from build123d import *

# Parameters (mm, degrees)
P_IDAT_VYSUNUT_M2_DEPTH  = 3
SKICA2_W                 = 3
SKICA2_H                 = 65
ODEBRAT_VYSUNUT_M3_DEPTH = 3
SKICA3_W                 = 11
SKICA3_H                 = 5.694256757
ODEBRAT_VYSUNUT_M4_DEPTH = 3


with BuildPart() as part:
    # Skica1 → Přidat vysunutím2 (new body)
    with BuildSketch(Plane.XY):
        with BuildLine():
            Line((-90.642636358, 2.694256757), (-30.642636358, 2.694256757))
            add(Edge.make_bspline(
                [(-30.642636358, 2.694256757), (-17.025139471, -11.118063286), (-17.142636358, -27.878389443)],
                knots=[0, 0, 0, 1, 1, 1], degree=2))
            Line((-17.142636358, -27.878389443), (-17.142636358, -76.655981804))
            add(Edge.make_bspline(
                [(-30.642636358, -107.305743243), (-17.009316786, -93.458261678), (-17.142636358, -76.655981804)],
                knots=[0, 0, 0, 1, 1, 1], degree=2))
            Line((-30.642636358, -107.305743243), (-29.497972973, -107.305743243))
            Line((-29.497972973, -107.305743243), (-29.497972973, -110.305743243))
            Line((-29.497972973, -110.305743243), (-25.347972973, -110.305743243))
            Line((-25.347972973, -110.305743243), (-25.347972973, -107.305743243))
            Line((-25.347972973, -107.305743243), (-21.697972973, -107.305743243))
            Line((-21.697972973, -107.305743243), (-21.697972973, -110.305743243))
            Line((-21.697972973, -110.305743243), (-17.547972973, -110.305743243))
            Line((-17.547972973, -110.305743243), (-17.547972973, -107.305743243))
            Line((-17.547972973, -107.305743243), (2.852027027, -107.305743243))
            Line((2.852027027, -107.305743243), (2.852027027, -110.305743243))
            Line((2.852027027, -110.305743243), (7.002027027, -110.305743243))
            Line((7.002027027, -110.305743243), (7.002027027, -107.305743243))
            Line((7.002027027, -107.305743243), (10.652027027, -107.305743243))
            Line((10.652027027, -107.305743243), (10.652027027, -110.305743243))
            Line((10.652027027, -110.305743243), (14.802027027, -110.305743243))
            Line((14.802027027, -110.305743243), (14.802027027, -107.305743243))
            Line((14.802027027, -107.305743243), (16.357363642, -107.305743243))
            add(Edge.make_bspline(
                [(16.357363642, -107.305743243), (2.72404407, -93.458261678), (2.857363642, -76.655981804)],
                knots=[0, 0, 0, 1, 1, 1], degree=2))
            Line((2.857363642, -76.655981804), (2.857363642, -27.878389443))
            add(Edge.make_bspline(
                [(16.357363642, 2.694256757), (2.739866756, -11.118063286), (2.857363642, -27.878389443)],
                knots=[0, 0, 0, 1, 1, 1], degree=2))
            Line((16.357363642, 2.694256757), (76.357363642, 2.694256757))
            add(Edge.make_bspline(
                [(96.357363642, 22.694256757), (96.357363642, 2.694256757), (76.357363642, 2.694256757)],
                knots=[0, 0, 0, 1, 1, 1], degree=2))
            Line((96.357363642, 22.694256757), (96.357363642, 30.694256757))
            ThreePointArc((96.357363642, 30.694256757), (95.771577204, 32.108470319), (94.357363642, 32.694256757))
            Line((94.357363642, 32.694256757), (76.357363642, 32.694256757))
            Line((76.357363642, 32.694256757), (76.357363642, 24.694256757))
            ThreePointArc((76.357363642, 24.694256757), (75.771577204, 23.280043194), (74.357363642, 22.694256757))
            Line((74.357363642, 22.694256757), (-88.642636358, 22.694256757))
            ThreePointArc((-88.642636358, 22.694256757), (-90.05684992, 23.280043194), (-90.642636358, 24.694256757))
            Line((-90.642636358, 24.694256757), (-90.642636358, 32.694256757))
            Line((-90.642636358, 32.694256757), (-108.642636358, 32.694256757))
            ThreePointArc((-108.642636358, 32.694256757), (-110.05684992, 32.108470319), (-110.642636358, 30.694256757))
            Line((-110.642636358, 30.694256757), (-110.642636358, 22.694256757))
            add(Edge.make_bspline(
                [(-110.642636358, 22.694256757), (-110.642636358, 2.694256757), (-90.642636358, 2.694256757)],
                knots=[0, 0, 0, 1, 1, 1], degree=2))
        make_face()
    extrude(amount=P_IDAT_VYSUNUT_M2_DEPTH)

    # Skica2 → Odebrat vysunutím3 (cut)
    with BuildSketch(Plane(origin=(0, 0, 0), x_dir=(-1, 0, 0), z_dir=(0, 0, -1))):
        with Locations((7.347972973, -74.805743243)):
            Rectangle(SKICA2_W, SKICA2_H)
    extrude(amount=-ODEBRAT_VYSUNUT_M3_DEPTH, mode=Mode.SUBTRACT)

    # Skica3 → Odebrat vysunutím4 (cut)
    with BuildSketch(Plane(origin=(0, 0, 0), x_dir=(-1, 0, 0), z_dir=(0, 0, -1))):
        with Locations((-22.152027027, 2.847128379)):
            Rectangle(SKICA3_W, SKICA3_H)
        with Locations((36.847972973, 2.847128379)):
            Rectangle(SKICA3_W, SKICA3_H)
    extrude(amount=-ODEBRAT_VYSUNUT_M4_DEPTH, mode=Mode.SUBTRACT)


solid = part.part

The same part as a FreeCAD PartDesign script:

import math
import FreeCAD as App
import Part
import Sketcher

doc = App.newDocument("Part")
body = doc.addObject("PartDesign::Body", "Body")

# Sketch on XY plane
sketch1 = body.newObject("Sketcher::SketchObject", "Sketch")
sketch1.AttachmentSupport = (doc.getObject("XY_Plane"), [""])
sketch1.MapMode = "FlatFace"
sketch1.addGeometry([
    Part.LineSegment(App.Vector(-90.642636, 2.694257, 0), App.Vector(-30.642636, 2.694257, 0)),  # 0
    Part.BSplineCurve([App.Vector(-30.642636, 2.694257, 0), App.Vector(-17.025139, -11.118063, 0), App.Vector(-17.142636, -27.878389, 0)], [3, 3], [0, 1], False, 2, [1, 1, 1], False),  # 1
    Part.LineSegment(App.Vector(-17.142636, -27.878389, 0), App.Vector(-17.142636, -76.655982, 0)),  # 2
    Part.BSplineCurve([App.Vector(-30.642636, -107.305743, 0), App.Vector(-17.009317, -93.458262, 0), App.Vector(-17.142636, -76.655982, 0)], [3, 3], [0, 1], False, 2, [1, 1, 1], False),  # 3
    Part.LineSegment(App.Vector(-30.642636, -107.305743, 0), App.Vector(-29.497973, -107.305743, 0)),  # 4
    Part.LineSegment(App.Vector(-29.497973, -107.305743, 0), App.Vector(-29.497973, -110.305743, 0)),  # 5
    Part.LineSegment(App.Vector(-29.497973, -110.305743, 0), App.Vector(-25.347973, -110.305743, 0)),  # 6
    Part.LineSegment(App.Vector(-25.347973, -110.305743, 0), App.Vector(-25.347973, -107.305743, 0)),  # 7
    Part.LineSegment(App.Vector(-25.347973, -107.305743, 0), App.Vector(-21.697973, -107.305743, 0)),  # 8
    Part.LineSegment(App.Vector(-21.697973, -107.305743, 0), App.Vector(-21.697973, -110.305743, 0)),  # 9
    Part.LineSegment(App.Vector(-21.697973, -110.305743, 0), App.Vector(-17.547973, -110.305743, 0)),  # 10
    Part.LineSegment(App.Vector(-17.547973, -110.305743, 0), App.Vector(-17.547973, -107.305743, 0)),  # 11
    Part.LineSegment(App.Vector(-17.547973, -107.305743, 0), App.Vector(2.852027, -107.305743, 0)),  # 12
    Part.LineSegment(App.Vector(2.852027, -107.305743, 0), App.Vector(2.852027, -110.305743, 0)),  # 13
    Part.LineSegment(App.Vector(2.852027, -110.305743, 0), App.Vector(7.002027, -110.305743, 0)),  # 14
    Part.LineSegment(App.Vector(7.002027, -110.305743, 0), App.Vector(7.002027, -107.305743, 0)),  # 15
    Part.LineSegment(App.Vector(7.002027, -107.305743, 0), App.Vector(10.652027, -107.305743, 0)),  # 16
    Part.LineSegment(App.Vector(10.652027, -107.305743, 0), App.Vector(10.652027, -110.305743, 0)),  # 17
    Part.LineSegment(App.Vector(10.652027, -110.305743, 0), App.Vector(14.802027, -110.305743, 0)),  # 18
    Part.LineSegment(App.Vector(14.802027, -110.305743, 0), App.Vector(14.802027, -107.305743, 0)),  # 19
    Part.LineSegment(App.Vector(14.802027, -107.305743, 0), App.Vector(16.357364, -107.305743, 0)),  # 20
    Part.BSplineCurve([App.Vector(16.357364, -107.305743, 0), App.Vector(2.724044, -93.458262, 0), App.Vector(2.857364, -76.655982, 0)], [3, 3], [0, 1], False, 2, [1, 1, 1], False),  # 21
    Part.LineSegment(App.Vector(2.857364, -76.655982, 0), App.Vector(2.857364, -27.878389, 0)),  # 22
    Part.BSplineCurve([App.Vector(16.357364, 2.694257, 0), App.Vector(2.739867, -11.118063, 0), App.Vector(2.857364, -27.878389, 0)], [3, 3], [0, 1], False, 2, [1, 1, 1], False),  # 23
    Part.LineSegment(App.Vector(16.357364, 2.694257, 0), App.Vector(76.357364, 2.694257, 0)),  # 24
    Part.BSplineCurve([App.Vector(96.357364, 22.694257, 0), App.Vector(96.357364, 2.694257, 0), App.Vector(76.357364, 2.694257, 0)], [3, 3], [0, 1], False, 2, [1, 1, 1], False),  # 25
    Part.LineSegment(App.Vector(96.357364, 22.694257, 0), App.Vector(96.357364, 30.694257, 0)),  # 26
    Part.ArcOfCircle(Part.Circle(App.Vector(94.357364, 30.694257, 0), App.Vector(0, 0, 1), 2), math.radians(0), math.radians(90)),  # 27
    Part.LineSegment(App.Vector(94.357364, 32.694257, 0), App.Vector(76.357364, 32.694257, 0)),  # 28
    Part.LineSegment(App.Vector(76.357364, 32.694257, 0), App.Vector(76.357364, 24.694257, 0)),  # 29
    Part.ArcOfCircle(Part.Circle(App.Vector(74.357364, 24.694257, 0), App.Vector(0, 0, 1), 2), math.radians(-90), math.radians(0)),  # 30
    Part.LineSegment(App.Vector(74.357364, 22.694257, 0), App.Vector(-88.642636, 22.694257, 0)),  # 31
    Part.ArcOfCircle(Part.Circle(App.Vector(-88.642636, 24.694257, 0), App.Vector(0, 0, 1), 2), math.radians(180), math.radians(270)),  # 32
    Part.LineSegment(App.Vector(-90.642636, 24.694257, 0), App.Vector(-90.642636, 32.694257, 0)),  # 33
    Part.LineSegment(App.Vector(-90.642636, 32.694257, 0), App.Vector(-108.642636, 32.694257, 0)),  # 34
    Part.ArcOfCircle(Part.Circle(App.Vector(-108.642636, 30.694257, 0), App.Vector(0, 0, 1), 2), math.radians(90), math.radians(180)),  # 35
    Part.LineSegment(App.Vector(-110.642636, 30.694257, 0), App.Vector(-110.642636, 22.694257, 0)),  # 36
    Part.BSplineCurve([App.Vector(-110.642636, 22.694257, 0), App.Vector(-110.642636, 2.694257, 0), App.Vector(-90.642636, 2.694257, 0)], [3, 3], [0, 1], False, 2, [1, 1, 1], False),  # 37
], False)
sketch1.addConstraint([
    Sketcher.Constraint("Block", 1),
    Sketcher.Constraint("Block", 3),
    Sketcher.Constraint("Block", 21),
    Sketcher.Constraint("Block", 23),
    Sketcher.Constraint("Block", 25),
    Sketcher.Constraint("Block", 37),
    Sketcher.Constraint("Coincident", 0, 2, 1, 1),
    Sketcher.Constraint("Coincident", 1, 2, 2, 1),
    Sketcher.Constraint("Coincident", 2, 2, 3, 2),
    Sketcher.Constraint("Coincident", 3, 1, 4, 1),
    Sketcher.Constraint("Coincident", 4, 2, 5, 1),
    Sketcher.Constraint("Coincident", 5, 2, 6, 1),
    Sketcher.Constraint("Coincident", 6, 2, 7, 1),
    Sketcher.Constraint("Coincident", 7, 2, 8, 1),
    Sketcher.Constraint("Coincident", 8, 2, 9, 1),
    Sketcher.Constraint("Coincident", 9, 2, 10, 1),
    Sketcher.Constraint("Coincident", 10, 2, 11, 1),
    Sketcher.Constraint("Coincident", 11, 2, 12, 1),
    Sketcher.Constraint("Coincident", 12, 2, 13, 1),
    Sketcher.Constraint("Coincident", 13, 2, 14, 1),
    Sketcher.Constraint("Coincident", 14, 2, 15, 1),
    Sketcher.Constraint("Coincident", 15, 2, 16, 1),
    Sketcher.Constraint("Coincident", 16, 2, 17, 1),
    Sketcher.Constraint("Coincident", 17, 2, 18, 1),
    Sketcher.Constraint("Coincident", 18, 2, 19, 1),
    Sketcher.Constraint("Coincident", 19, 2, 20, 1),
    Sketcher.Constraint("Coincident", 20, 2, 21, 1),
    Sketcher.Constraint("Coincident", 21, 2, 22, 1),
    Sketcher.Constraint("Coincident", 22, 2, 23, 2),
    Sketcher.Constraint("Coincident", 23, 1, 24, 1),
    Sketcher.Constraint("Coincident", 24, 2, 25, 2),
    Sketcher.Constraint("Coincident", 25, 1, 26, 1),
    Sketcher.Constraint("Tangent", 26, 2, 27, 1),
    Sketcher.Constraint("Tangent", 27, 2, 28, 1),
    Sketcher.Constraint("Coincident", 28, 2, 29, 1),
    Sketcher.Constraint("Tangent", 29, 2, 30, 2),
    Sketcher.Constraint("Tangent", 30, 1, 31, 1),
    Sketcher.Constraint("Tangent", 31, 2, 32, 2),
    Sketcher.Constraint("Tangent", 32, 1, 33, 1),
    Sketcher.Constraint("Coincident", 33, 2, 34, 1),
    Sketcher.Constraint("Tangent", 34, 2, 35, 1),
    Sketcher.Constraint("Tangent", 35, 2, 36, 1),
    Sketcher.Constraint("Coincident", 36, 2, 37, 1),
    Sketcher.Constraint("Coincident", 37, 2, 0, 1),
    Sketcher.Constraint("Horizontal", 4),
    Sketcher.Constraint("Vertical", 5),
    Sketcher.Constraint("Horizontal", 6),
    Sketcher.Constraint("Vertical", 7),
    Sketcher.Constraint("Horizontal", 8),
    Sketcher.Constraint("Vertical", 9),
    Sketcher.Constraint("Horizontal", 10),
    Sketcher.Constraint("Vertical", 11),
    Sketcher.Constraint("Horizontal", 12),
    Sketcher.Constraint("Vertical", 13),
    Sketcher.Constraint("Horizontal", 14),
    Sketcher.Constraint("Vertical", 15),
    Sketcher.Constraint("Horizontal", 16),
    Sketcher.Constraint("Vertical", 17),
    Sketcher.Constraint("Horizontal", 18),
    Sketcher.Constraint("Vertical", 19),
    Sketcher.Constraint("Horizontal", 20),
    Sketcher.Constraint("Vertical", 26),
    Sketcher.Constraint("Horizontal", 28),
    Sketcher.Constraint("Vertical", 29),
    Sketcher.Constraint("Horizontal", 31),
    Sketcher.Constraint("Vertical", 33),
    Sketcher.Constraint("Horizontal", 34),
    Sketcher.Constraint("Vertical", 36),
    Sketcher.Constraint("Equal", 27, 30),
    Sketcher.Constraint("Equal", 30, 32),
    Sketcher.Constraint("Equal", 32, 35),
    Sketcher.Constraint("Horizontal", 27, 3, 35, 3),
    Sketcher.Constraint("Horizontal", 4, 2, 7, 2),
    Sketcher.Constraint("Horizontal", 6, 2, 9, 2),
    Sketcher.Constraint("Horizontal", 8, 2, 11, 2),
    Sketcher.Constraint("Horizontal", 10, 2, 13, 2),
    Sketcher.Constraint("Horizontal", 12, 2, 15, 2),
    Sketcher.Constraint("Horizontal", 14, 2, 17, 2),
    Sketcher.Constraint("Horizontal", 31, 2, 36, 2),
    Sketcher.Constraint("Vertical", 24, 2, 28, 2),
    Sketcher.Constraint("Equal", 6, 10),
    Sketcher.Constraint("Equal", 10, 14),
    Sketcher.Constraint("Equal", 8, 16),
    Sketcher.Constraint("Equal", 14, 18),
    Sketcher.Constraint("Equal", 28, 34),
    Sketcher.Constraint("Radius", 27, 2.0),
    Sketcher.Constraint("DistanceY", 5, 2, 5, 1, 3.0),
    Sketcher.Constraint("DistanceY", 26, 1, 26, 2, 8.0),
    Sketcher.Constraint("DistanceX", 12, 1, 12, 2, 20.4),
    Sketcher.Constraint("DistanceX", 6, 1, 6, 2, 4.15),
    Sketcher.Constraint("DistanceX", 8, 1, 8, 2, 3.65),
    Sketcher.Constraint("DistanceX", 4, 1, 4, 2, 1.144663),
])
pad1 = body.newObject("PartDesign::Pad", "Pad")
pad1.Profile = sketch1
pad1.Length = 3

# Sketch on XY plane
sketch2 = body.newObject("Sketcher::SketchObject", "Sketch001")
sketch2.AttachmentSupport = (doc.getObject("XY_Plane"), [""])
sketch2.MapMode = "FlatFace"
sketch2.addGeometry([
    Part.LineSegment(App.Vector(-5.8, -42.3, 0), App.Vector(-5.8, -107.3, 0)),
    Part.LineSegment(App.Vector(-5.8, -107.3, 0), App.Vector(-8.8, -107.3, 0)),
    Part.LineSegment(App.Vector(-8.8, -107.3, 0), App.Vector(-8.8, -42.3, 0)),
    Part.LineSegment(App.Vector(-8.8, -42.3, 0), App.Vector(-5.8, -42.3, 0)),
], False)
sketch2.addConstraint([
    Sketcher.Constraint("Coincident", 0, 2, 1, 1),
    Sketcher.Constraint("Coincident", 1, 2, 2, 1),
    Sketcher.Constraint("Coincident", 2, 2, 3, 1),
    Sketcher.Constraint("Coincident", 3, 2, 0, 1),
    Sketcher.Constraint("Vertical", 0),
    Sketcher.Constraint("Horizontal", 1),
    Sketcher.Constraint("Vertical", 2),
    Sketcher.Constraint("Horizontal", 3),
    Sketcher.Constraint("DistanceX", 1, 2, 1, 1, 3.0),
    Sketcher.Constraint("DistanceY", 0, 2, 0, 1, 65.0),
    Sketcher.Constraint("DistanceX", 0, 2, -1, 1, 5.847973),
    Sketcher.Constraint("DistanceY", 0, 2, -1, 1, 107.305743),
])
pocket1 = body.newObject("PartDesign::Pocket", "Pocket")
pocket1.Profile = sketch2
pocket1.Length = 3
pocket1.Reversed = True

# Sketch on XY plane
sketch3 = body.newObject("Sketcher::SketchObject", "Sketch002")
sketch3.AttachmentSupport = (doc.getObject("XY_Plane"), [""])
sketch3.MapMode = "FlatFace"
sketch3.addGeometry([
    Part.LineSegment(App.Vector(28, 6, 0), App.Vector(28, 0, 0)),  # 0
    Part.LineSegment(App.Vector(28, 0, 0), App.Vector(17, 0, 0)),  # 1
    Part.LineSegment(App.Vector(17, 0, 0), App.Vector(17, 6, 0)),  # 2
    Part.LineSegment(App.Vector(17, 6, 0), App.Vector(28, 6, 0)),  # 3
    Part.LineSegment(App.Vector(-31, 6, 0), App.Vector(-31, 0, 0)),  # 4
    Part.LineSegment(App.Vector(-31, 0, 0), App.Vector(-42, 0, 0)),  # 5
    Part.LineSegment(App.Vector(-42, 0, 0), App.Vector(-42, 6, 0)),  # 6
    Part.LineSegment(App.Vector(-42, 6, 0), App.Vector(-31, 6, 0)),  # 7
], False)
sketch3.addConstraint([
    Sketcher.Constraint("Coincident", 0, 2, 1, 1),
    Sketcher.Constraint("Coincident", 1, 2, 2, 1),
    Sketcher.Constraint("Coincident", 2, 2, 3, 1),
    Sketcher.Constraint("Coincident", 3, 2, 0, 1),
    Sketcher.Constraint("Coincident", 4, 2, 5, 1),
    Sketcher.Constraint("Coincident", 5, 2, 6, 1),
    Sketcher.Constraint("Coincident", 6, 2, 7, 1),
    Sketcher.Constraint("Coincident", 7, 2, 4, 1),
    Sketcher.Constraint("Vertical", 0),
    Sketcher.Constraint("Horizontal", 1),
    Sketcher.Constraint("Vertical", 2),
    Sketcher.Constraint("Horizontal", 3),
    Sketcher.Constraint("Vertical", 4),
    Sketcher.Constraint("Horizontal", 5),
    Sketcher.Constraint("Vertical", 6),
    Sketcher.Constraint("Horizontal", 7),
    Sketcher.Constraint("PointOnObject", 0, 2, -1),
    Sketcher.Constraint("PointOnObject", 4, 2, -1),
    Sketcher.Constraint("Horizontal", 3, 2, 6, 2),
    Sketcher.Constraint("Equal", 3, 5),
    Sketcher.Constraint("DistanceX", 1, 2, 1, 1, 11.0),
    Sketcher.Constraint("DistanceX", 4, 2, 1, 2, 48.0),
    Sketcher.Constraint("DistanceY", 0, 2, 0, 1, 5.694257),
    Sketcher.Constraint("DistanceX", -1, 1, 0, 2, 27.652027),
])
pocket2 = body.newObject("PartDesign::Pocket", "Pocket001")
pocket2.Profile = sketch3
pocket2.Length = 3
pocket2.Reversed = True

doc.recompute()
